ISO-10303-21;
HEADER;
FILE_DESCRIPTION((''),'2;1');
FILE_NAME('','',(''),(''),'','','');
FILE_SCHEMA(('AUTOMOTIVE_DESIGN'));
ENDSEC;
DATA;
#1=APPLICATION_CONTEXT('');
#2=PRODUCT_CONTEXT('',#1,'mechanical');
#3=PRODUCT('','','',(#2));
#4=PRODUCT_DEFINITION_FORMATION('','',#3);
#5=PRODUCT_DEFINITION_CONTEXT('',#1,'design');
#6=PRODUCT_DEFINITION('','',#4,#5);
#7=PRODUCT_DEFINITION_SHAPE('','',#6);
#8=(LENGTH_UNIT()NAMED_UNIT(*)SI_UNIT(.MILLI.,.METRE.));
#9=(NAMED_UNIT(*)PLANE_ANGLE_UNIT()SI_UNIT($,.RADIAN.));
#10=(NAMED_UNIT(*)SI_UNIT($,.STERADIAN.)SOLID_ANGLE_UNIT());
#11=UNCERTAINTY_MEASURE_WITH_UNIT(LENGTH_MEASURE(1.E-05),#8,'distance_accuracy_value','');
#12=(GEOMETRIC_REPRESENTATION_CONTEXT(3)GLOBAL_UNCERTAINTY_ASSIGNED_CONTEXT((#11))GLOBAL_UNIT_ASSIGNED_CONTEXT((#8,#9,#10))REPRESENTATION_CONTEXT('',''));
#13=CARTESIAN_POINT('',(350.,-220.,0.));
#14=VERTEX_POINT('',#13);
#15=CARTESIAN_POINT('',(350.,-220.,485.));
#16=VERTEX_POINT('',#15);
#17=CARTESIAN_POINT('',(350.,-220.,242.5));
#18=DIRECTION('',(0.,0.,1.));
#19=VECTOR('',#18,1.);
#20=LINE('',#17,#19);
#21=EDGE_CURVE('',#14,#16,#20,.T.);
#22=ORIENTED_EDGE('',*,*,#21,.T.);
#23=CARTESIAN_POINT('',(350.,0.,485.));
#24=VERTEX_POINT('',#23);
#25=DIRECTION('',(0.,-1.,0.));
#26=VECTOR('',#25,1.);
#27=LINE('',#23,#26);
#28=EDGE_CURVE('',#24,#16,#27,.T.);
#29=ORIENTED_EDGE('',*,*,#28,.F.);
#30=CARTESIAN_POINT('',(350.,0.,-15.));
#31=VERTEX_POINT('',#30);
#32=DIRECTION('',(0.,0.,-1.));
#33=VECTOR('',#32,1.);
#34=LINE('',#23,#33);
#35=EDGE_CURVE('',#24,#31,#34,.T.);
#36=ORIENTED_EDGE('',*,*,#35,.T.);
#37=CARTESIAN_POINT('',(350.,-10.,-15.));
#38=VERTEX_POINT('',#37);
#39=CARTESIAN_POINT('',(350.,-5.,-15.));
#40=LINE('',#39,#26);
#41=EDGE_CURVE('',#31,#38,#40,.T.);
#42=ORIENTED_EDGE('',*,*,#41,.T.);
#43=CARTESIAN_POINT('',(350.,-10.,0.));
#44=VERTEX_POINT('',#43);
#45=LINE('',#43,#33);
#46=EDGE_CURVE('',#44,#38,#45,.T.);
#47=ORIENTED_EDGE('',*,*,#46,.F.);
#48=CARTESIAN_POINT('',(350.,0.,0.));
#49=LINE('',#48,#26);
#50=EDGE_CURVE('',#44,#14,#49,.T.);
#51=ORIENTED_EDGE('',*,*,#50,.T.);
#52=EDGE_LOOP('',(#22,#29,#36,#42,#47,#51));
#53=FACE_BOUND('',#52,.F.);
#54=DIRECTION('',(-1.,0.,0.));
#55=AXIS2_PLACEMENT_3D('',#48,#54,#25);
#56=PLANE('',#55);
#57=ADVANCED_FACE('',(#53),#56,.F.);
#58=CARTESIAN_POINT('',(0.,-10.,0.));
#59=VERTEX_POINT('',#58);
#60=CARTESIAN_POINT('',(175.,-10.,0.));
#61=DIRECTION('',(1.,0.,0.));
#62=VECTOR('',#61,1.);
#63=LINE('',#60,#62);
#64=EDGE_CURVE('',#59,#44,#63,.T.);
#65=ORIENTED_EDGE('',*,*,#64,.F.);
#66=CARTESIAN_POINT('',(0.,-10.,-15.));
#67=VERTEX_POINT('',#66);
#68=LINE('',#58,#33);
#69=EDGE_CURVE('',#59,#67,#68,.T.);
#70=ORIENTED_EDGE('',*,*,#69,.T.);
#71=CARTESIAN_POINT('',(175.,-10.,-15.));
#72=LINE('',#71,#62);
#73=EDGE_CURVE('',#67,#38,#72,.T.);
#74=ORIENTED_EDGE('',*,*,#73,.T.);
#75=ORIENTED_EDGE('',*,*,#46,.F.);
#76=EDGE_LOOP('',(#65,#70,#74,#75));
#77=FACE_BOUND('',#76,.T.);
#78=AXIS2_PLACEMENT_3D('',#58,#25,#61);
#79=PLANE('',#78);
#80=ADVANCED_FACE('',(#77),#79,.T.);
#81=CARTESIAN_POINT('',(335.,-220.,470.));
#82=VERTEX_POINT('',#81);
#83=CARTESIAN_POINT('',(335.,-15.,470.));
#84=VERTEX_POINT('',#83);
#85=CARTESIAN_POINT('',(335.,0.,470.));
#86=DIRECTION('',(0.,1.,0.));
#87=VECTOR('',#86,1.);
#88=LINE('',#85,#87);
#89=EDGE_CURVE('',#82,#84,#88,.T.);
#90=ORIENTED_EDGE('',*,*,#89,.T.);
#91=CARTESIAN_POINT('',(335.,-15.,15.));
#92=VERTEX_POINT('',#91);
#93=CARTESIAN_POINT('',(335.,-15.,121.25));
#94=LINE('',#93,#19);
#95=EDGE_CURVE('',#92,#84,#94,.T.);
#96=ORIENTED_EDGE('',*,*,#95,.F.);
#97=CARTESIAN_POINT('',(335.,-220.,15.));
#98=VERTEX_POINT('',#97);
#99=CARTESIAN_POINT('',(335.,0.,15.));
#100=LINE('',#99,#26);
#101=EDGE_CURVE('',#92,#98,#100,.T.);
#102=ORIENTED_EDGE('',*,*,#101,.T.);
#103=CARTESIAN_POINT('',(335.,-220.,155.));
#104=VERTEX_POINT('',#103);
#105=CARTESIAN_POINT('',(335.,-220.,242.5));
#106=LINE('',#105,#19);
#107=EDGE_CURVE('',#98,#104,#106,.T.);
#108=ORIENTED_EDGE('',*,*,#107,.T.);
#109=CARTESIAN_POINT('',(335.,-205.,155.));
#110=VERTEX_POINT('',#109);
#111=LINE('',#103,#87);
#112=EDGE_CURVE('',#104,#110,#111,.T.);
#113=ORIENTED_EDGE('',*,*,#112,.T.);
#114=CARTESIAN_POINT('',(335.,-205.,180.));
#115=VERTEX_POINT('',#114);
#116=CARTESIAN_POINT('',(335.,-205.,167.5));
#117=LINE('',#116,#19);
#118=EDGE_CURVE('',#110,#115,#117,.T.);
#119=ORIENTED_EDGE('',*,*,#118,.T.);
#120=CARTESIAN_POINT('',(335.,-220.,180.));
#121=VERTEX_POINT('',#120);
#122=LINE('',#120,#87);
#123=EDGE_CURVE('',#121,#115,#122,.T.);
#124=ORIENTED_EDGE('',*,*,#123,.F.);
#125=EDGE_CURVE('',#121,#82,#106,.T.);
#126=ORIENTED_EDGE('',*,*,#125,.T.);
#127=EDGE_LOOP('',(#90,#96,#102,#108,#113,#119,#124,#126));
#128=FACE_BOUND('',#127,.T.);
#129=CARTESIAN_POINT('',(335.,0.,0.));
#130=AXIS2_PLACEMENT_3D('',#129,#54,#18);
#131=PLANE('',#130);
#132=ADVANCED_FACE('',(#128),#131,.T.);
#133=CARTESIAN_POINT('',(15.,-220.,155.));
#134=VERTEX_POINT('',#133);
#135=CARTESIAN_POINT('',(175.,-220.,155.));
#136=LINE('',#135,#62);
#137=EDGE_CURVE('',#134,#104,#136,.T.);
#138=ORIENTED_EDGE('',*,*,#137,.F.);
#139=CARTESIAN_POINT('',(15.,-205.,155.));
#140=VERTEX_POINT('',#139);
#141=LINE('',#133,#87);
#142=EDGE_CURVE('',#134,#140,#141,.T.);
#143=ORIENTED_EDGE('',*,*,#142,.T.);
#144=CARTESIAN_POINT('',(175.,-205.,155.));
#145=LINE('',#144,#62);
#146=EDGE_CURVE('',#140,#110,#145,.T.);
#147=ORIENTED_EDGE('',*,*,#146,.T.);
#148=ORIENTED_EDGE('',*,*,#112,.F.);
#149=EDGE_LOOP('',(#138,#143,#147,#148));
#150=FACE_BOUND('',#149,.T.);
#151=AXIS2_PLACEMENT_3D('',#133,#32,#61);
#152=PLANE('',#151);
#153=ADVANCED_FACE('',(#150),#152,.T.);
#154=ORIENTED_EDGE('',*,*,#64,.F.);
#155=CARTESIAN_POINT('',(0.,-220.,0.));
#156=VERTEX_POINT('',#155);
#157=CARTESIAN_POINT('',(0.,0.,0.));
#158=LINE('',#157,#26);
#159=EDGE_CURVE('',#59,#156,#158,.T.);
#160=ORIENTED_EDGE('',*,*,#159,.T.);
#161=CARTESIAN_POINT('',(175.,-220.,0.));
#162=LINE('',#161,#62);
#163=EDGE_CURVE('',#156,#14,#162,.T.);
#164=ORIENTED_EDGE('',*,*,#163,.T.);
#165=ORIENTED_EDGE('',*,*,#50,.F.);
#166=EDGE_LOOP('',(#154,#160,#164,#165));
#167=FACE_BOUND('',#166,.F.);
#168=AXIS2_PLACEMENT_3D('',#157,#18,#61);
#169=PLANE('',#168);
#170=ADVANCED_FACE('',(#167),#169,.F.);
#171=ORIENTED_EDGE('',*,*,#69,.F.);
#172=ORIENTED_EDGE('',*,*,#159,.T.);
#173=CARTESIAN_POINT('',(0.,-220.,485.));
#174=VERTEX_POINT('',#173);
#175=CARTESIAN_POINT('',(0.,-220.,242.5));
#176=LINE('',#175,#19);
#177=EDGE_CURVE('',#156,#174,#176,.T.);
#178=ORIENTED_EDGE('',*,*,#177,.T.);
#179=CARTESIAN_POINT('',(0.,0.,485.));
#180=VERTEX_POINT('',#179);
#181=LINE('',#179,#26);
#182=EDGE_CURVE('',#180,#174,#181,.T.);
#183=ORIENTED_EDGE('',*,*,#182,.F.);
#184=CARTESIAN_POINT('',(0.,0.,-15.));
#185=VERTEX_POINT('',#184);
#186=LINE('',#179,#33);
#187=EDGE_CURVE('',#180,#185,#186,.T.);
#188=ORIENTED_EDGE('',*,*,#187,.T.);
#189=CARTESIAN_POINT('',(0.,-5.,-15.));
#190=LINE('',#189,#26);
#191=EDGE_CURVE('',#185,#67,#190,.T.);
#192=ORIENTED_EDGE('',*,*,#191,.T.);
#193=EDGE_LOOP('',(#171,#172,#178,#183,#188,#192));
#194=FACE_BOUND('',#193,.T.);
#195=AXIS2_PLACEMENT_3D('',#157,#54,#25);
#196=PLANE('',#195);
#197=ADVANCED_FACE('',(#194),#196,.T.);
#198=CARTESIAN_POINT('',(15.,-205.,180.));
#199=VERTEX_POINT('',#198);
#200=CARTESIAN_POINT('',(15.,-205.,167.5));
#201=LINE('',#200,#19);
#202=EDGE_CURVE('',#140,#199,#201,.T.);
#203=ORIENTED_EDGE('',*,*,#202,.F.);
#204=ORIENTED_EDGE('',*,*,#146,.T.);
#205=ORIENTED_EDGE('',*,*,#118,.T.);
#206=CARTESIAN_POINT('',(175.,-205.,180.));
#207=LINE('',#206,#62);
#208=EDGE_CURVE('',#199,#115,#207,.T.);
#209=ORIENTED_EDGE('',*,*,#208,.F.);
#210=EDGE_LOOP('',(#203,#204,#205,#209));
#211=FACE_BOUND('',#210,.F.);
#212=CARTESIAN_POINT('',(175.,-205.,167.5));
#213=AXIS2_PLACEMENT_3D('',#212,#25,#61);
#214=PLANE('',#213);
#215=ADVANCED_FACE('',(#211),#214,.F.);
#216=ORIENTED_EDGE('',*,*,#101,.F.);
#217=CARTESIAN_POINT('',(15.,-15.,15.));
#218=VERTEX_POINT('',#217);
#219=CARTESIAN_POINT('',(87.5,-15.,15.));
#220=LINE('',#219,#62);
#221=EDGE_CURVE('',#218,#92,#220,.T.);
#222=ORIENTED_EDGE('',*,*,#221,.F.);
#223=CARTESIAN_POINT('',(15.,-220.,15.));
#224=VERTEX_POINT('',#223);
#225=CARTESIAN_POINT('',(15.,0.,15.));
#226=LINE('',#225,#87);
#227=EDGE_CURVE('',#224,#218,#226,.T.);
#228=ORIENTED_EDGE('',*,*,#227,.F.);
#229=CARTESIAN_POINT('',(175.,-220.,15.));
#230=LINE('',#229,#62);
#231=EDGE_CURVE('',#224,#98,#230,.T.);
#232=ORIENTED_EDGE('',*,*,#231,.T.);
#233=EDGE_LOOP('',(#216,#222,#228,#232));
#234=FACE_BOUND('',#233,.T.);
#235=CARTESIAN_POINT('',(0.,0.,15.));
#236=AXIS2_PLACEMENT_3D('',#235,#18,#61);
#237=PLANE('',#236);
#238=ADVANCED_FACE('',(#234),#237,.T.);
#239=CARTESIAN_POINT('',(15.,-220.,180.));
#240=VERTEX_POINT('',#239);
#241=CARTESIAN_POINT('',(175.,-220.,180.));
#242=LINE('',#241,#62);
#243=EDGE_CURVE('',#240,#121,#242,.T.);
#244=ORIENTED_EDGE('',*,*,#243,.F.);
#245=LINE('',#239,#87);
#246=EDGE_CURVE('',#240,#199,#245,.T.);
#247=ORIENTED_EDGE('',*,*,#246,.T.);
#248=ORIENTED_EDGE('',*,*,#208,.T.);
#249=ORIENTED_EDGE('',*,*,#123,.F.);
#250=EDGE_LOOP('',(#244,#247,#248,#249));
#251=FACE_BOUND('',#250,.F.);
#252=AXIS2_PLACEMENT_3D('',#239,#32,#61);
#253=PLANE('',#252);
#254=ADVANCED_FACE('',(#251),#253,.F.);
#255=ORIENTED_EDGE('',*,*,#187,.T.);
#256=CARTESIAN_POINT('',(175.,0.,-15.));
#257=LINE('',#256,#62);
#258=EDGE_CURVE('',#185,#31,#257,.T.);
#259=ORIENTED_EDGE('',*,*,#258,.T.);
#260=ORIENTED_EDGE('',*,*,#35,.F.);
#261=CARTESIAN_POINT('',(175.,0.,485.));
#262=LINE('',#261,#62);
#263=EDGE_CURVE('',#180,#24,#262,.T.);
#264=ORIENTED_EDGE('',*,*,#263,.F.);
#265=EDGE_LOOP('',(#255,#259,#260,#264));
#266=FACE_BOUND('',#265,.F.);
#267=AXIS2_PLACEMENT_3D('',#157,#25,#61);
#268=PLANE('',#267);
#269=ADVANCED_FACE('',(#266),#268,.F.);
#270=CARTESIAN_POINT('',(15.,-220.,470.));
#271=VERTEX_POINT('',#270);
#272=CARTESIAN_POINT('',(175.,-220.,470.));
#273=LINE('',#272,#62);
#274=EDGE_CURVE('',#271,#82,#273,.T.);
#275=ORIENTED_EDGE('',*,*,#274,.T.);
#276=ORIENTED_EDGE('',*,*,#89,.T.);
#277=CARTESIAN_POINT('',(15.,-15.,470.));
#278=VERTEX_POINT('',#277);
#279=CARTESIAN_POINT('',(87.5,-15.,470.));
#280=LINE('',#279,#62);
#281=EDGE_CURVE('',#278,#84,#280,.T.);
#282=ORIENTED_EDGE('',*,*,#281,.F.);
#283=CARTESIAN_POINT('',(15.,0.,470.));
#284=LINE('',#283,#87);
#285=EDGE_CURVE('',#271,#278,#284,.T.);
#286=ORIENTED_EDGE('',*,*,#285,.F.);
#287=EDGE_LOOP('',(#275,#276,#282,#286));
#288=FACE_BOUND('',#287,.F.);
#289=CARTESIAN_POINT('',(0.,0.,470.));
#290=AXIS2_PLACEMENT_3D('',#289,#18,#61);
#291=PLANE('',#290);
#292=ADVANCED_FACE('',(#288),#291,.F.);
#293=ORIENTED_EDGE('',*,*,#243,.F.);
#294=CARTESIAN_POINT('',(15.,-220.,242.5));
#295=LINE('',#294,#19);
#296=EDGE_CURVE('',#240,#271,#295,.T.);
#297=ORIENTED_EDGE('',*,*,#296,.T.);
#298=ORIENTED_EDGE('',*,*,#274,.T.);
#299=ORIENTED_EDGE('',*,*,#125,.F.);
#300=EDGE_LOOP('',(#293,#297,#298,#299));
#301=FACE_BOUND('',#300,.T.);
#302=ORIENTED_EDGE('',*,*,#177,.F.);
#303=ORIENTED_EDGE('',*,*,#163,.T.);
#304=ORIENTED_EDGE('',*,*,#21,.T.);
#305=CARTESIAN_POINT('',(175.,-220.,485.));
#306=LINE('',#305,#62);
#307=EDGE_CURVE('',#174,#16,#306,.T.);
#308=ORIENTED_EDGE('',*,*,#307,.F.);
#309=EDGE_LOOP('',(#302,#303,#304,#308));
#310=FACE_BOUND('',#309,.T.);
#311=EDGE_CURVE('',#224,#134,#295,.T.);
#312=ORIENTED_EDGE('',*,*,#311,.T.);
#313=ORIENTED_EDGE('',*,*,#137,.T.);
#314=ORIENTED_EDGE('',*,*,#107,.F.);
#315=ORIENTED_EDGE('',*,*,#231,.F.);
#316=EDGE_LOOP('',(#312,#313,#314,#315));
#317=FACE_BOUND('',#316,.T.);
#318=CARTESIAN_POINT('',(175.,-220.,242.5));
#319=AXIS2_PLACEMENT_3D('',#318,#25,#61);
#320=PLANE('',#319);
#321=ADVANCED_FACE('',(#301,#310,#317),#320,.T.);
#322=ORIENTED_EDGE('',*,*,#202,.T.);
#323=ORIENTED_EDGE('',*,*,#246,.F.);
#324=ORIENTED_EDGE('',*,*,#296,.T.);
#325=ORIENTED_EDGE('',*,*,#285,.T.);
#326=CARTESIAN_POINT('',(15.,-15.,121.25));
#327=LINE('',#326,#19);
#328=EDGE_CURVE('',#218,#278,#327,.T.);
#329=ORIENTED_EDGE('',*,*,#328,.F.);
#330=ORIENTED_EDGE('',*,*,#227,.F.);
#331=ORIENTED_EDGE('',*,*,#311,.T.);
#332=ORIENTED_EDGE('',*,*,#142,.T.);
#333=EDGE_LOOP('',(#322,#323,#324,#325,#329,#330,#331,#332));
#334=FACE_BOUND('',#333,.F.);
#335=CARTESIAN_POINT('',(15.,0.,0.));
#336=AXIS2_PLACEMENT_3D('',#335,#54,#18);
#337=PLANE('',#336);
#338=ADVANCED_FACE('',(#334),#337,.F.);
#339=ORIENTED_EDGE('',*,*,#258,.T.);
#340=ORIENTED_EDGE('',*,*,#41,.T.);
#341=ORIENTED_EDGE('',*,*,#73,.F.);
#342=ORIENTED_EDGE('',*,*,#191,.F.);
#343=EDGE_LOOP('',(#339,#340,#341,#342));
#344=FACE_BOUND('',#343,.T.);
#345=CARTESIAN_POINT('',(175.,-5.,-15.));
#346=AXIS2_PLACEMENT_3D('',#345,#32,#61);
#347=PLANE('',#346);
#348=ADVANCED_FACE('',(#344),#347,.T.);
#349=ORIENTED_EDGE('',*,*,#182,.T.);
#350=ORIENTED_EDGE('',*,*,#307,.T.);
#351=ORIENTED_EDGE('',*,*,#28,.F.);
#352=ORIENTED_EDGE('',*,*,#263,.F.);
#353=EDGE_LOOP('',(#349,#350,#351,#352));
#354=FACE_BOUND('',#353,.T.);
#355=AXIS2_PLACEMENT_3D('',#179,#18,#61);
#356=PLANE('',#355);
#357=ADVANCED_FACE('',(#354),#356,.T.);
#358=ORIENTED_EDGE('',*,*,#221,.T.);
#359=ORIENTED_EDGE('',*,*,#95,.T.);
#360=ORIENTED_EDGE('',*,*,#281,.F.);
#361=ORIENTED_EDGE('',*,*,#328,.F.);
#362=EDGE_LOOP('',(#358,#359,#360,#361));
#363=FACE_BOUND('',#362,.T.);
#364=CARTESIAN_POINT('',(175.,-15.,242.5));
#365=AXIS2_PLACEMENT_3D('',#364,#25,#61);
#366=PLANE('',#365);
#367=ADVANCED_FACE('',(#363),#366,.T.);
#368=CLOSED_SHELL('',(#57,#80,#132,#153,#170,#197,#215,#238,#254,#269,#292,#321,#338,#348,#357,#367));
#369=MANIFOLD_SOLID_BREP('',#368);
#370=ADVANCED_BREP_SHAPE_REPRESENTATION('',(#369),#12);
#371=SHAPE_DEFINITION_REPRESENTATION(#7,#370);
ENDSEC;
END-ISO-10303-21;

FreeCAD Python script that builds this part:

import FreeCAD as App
import Part
import Sketcher

V = App.Vector


def faces_at(feature, points):
    """Names of the faces that lie closest to the given points."""
    faces = feature.Shape.Faces
    near = lambda p: min(range(len(faces)), key=lambda i: faces[i].distToShape(Part.Vertex(*p))[0])
    return sorted({f"Face{near(p) + 1}" for p in points})

doc = App.newDocument("Part")
params = doc.addObject("Spreadsheet::Sheet", "Params")
for row, (alias, value) in enumerate([
    ("sketch1_width", "350 mm"),
    ("sketch1_height", "485 mm"),
    ("pad1_length", "220 mm"),
    ("thickness_wall", "15 mm"),
    ("sketch2_width", "320 mm"),
    ("sketch2_height", "25 mm"),
    ("pad2_length", "15 mm"),
    ("sketch3_width", "350 mm"),
    ("sketch3_height", "10 mm"),
    ("pad3_length", "15 mm"),
], start=1):
    params.set(f"A{row}", alias)
    params.set(f"B{row}", "=" + value)
    params.setAlias(f"B{row}", alias)

body = doc.addObject("PartDesign::Body", "Body")

# Sketch on XZ plane
sketch1 = doc.addObject("Sketcher::SketchObject", "Sketch")
body.addObject(sketch1)
sketch1.AttachmentSupport = (doc.XZ_Plane, [""])
sketch1.MapMode = "FlatFace"
sketch1.addGeometry([
    Part.LineSegment(V(0, 485, 0), V(0, 0, 0)),
    Part.LineSegment(V(0, 0, 0), V(350, 0, 0)),
    Part.LineSegment(V(350, 0, 0), V(350, 485, 0)),
    Part.LineSegment(V(350, 485, 0), V(0, 485, 0)),
], False)
sketch1.addConstraint([
    Sketcher.Constraint("Coincident", 0, 2, 1, 1),
    Sketcher.Constraint("Coincident", 1, 2, 2, 1),
    Sketcher.Constraint("Coincident", 2, 2, 3, 1),
    Sketcher.Constraint("Coincident", 3, 2, 0, 1),
    Sketcher.Constraint("Vertical", 0),
    Sketcher.Constraint("Horizontal", 1),
    Sketcher.Constraint("Vertical", 2),
    Sketcher.Constraint("Horizontal", 3),
    Sketcher.Constraint("Coincident", 0, 2, -1, 1),
    Sketcher.Constraint("DistanceX", 1, 1, 1, 2, 350.0),
    Sketcher.Constraint("DistanceY", 0, 2, 0, 1, 485.0),
])
sketch1.setExpression("Constraints[9]", "Params.sketch1_width")
sketch1.setExpression("Constraints[10]", "Params.sketch1_height")
pad1 = doc.addObject("PartDesign::Pad", "Pad")
body.addObject(pad1)
pad1.Profile = sketch1
pad1.setExpression("Length", "Params.pad1_length")
doc.recompute()

thickness = doc.addObject("PartDesign::Thickness", "Thickness")
body.addObject(thickness)
thickness.Base = (pad1, faces_at(pad1, [(175, -220, 242.5)]))
thickness.setExpression("Value", "Params.thickness_wall")
thickness.Reversed = True
thickness.Join = "Arc"

# Sketch on XZ plane
sketch2 = doc.addObject("Sketcher::SketchObject", "Sketch001")
body.addObject(sketch2)
sketch2.AttachmentSupport = (doc.XZ_Plane, [""])
sketch2.MapMode = "FlatFace"
sketch2.AttachmentOffset = App.Placement(V(0, 0, 220), App.Rotation())
sketch2.addGeometry([
    Part.LineSegment(V(15, 180, 0), V(15, 155, 0)),
    Part.LineSegment(V(15, 155, 0), V(335, 155, 0)),
    Part.LineSegment(V(335, 155, 0), V(335, 180, 0)),
    Part.LineSegment(V(335, 180, 0), V(15, 180, 0)),
], False)
sketch2.addConstraint([
    Sketcher.Constraint("Coincident", 0, 2, 1, 1),
    Sketcher.Constraint("Coincident", 1, 2, 2, 1),
    Sketcher.Constraint("Coincident", 2, 2, 3, 1),
    Sketcher.Constraint("Coincident", 3, 2, 0, 1),
    Sketcher.Constraint("Vertical", 0),
    Sketcher.Constraint("Horizontal", 1),
    Sketcher.Constraint("Vertical", 2),
    Sketcher.Constraint("Horizontal", 3),
    Sketcher.Constraint("DistanceX", 1, 1, 1, 2, 320.0),
    Sketcher.Constraint("DistanceY", 0, 2, 0, 1, 25.0),
    Sketcher.Constraint("DistanceX", -1, 1, 0, 2, 15.0),
    Sketcher.Constraint("DistanceY", -1, 1, 0, 2, 155.0),
])
sketch2.setExpression("Constraints[8]", "Params.sketch2_width")
sketch2.setExpression("Constraints[9]", "Params.sketch2_height")
pad2 = doc.addObject("PartDesign::Pad", "Pad001")
body.addObject(pad2)
pad2.Profile = sketch2
pad2.setExpression("Length", "Params.pad2_length")
pad2.Reversed = True

# Sketch on XY plane
sketch3 = doc.addObject("Sketcher::SketchObject", "Sketch002")
body.addObject(sketch3)
sketch3.AttachmentSupport = (doc.XY_Plane, [""])
sketch3.MapMode = "FlatFace"
sketch3.addGeometry([
    Part.LineSegment(V(0, -10, 0), V(0, 0, 0)),
    Part.LineSegment(V(0, 0, 0), V(350, 0, 0)),
    Part.LineSegment(V(350, 0, 0), V(350, -10, 0)),
    Part.LineSegment(V(350, -10, 0), V(0, -10, 0)),
], False)
sketch3.addConstraint([
    Sketcher.Constraint("Coincident", 0, 2, 1, 1),
    Sketcher.Constraint("Coincident", 1, 2, 2, 1),
    Sketcher.Constraint("Coincident", 2, 2, 3, 1),
    Sketcher.Constraint("Coincident", 3, 2, 0, 1),
    Sketcher.Constraint("Vertical", 0),
    Sketcher.Constraint("Horizontal", 1),
    Sketcher.Constraint("Vertical", 2),
    Sketcher.Constraint("Horizontal", 3),
    Sketcher.Constraint("Coincident", 0, 2, -1, 1),
    Sketcher.Constraint("DistanceX", 1, 1, 1, 2, 350.0),
    Sketcher.Constraint("DistanceY", 0, 1, 0, 2, 10.0),
])
sketch3.setExpression("Constraints[9]", "Params.sketch3_width")
sketch3.setExpression("Constraints[10]", "Params.sketch3_height")
pad3 = doc.addObject("PartDesign::Pad", "Pad002")
body.addObject(pad3)
pad3.Profile = sketch3
pad3.setExpression("Length", "Params.pad3_length")
pad3.Reversed = True

doc.recompute()
